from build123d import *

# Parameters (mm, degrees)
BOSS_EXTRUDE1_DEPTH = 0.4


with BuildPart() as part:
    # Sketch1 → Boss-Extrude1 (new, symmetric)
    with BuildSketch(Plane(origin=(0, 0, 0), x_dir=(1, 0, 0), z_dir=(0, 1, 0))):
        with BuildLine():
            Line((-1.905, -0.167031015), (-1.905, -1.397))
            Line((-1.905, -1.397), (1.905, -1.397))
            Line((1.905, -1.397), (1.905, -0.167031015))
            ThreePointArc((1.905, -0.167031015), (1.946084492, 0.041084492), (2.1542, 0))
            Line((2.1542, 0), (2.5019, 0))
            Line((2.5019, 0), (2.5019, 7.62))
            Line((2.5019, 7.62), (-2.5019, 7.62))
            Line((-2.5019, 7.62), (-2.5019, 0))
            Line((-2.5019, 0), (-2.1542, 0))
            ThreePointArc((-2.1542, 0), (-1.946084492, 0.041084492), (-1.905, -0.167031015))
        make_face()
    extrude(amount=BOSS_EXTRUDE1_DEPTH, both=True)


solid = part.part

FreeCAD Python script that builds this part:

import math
import FreeCAD as App
import Part
import Sketcher

V = App.Vector
Q = App.Units.Quantity

doc = App.newDocument("Part")
body = doc.addObject("PartDesign::Body", "Body")

# Sketch on XZ plane
sketch1 = body.newObject("Sketcher::SketchObject", "Sketch")
sketch1.AttachmentSupport = (doc.getObject("XZ_Plane"), [""])
sketch1.MapMode = "FlatFace"
sketch1.addGeometry([
    Part.LineSegment(V(-1.91, 0.17, 0), V(-1.91, 1.4, 0)),  # 0
    Part.LineSegment(V(-1.91, 1.4, 0), V(1.91, 1.4, 0)),  # 1
    Part.LineSegment(V(1.91, 1.4, 0), V(1.91, 0.17, 0)),  # 2
    Part.ArcOfCircle(Part.Circle(V(2.03, 0.08, 0), V(0, 0, 1), 0.15), math.radians(146), math.radians(326)),  # 3
    Part.LineSegment(V(2.15, 0, 0), V(2.5, 0, 0)),  # 4
    Part.LineSegment(V(2.5, 0, 0), V(2.5, -7.62, 0)),  # 5
    Part.LineSegment(V(2.5, -7.62, 0), V(-2.5, -7.62, 0)),  # 6
    Part.LineSegment(V(-2.5, -7.62, 0), V(-2.5, 0, 0)),  # 7
    Part.LineSegment(V(-2.5, 0, 0), V(-2.15, 0, 0)),  # 8
    Part.ArcOfCircle(Part.Circle(V(-2.03, 0.08, 0), V(0, 0, 1), 0.15), math.radians(-146), math.radians(34)),  # 9
], False)
sketch1.addConstraint([
    Sketcher.Constraint("Coincident", 0, 2, 1, 1),
    Sketcher.Constraint("Coincident", 1, 2, 2, 1),
    Sketcher.Constraint("Coincident", 2, 2, 3, 1),
    Sketcher.Constraint("Coincident", 3, 2, 4, 1),
    Sketcher.Constraint("Coincident", 4, 2, 5, 1),
    Sketcher.Constraint("Coincident", 5, 2, 6, 1),
    Sketcher.Constraint("Coincident", 6, 2, 7, 1),
    Sketcher.Constraint("Coincident", 7, 2, 8, 1),
    Sketcher.Constraint("Coincident", 8, 2, 9, 1),
    Sketcher.Constraint("Coincident", 9, 2, 0, 1),
    Sketcher.Constraint("Vertical", 0),
    Sketcher.Constraint("Horizontal", 1),
    Sketcher.Constraint("Vertical", 2),
    Sketcher.Constraint("Horizontal", 4),
    Sketcher.Constraint("Vertical", 5),
    Sketcher.Constraint("Horizontal", 6),
    Sketcher.Constraint("Vertical", 7),
    Sketcher.Constraint("Horizontal", 8),
    Sketcher.Constraint("Equal", 3, 9),
    Sketcher.Constraint("Symmetric", 4, 2, 7, 2, -1, 1),
    Sketcher.Constraint("Symmetric", 3, 3, 9, 3, -2),
    Sketcher.Constraint("PointOnObject", 3, 2, -1),
    Sketcher.Constraint("Horizontal", 2, 2, 9, 2),
    Sketcher.Constraint("DistanceY", 5, 2, 5, 1, Q("0.3 in")),
    Sketcher.Constraint("DistanceX", 1, 1, 1, 2, Q("0.15 in")),
    Sketcher.Constraint("DistanceX", 6, 2, 6, 1, Q("0.197 in")),
    Sketcher.Constraint("Radius", 3, Q("0.15 mm")),
    Sketcher.Constraint("DistanceY", -1, 1, 0, 2, Q("0.055 in")),
    Sketcher.Constraint("DistanceX", 4, 1, 4, 2, Q("0.3477 mm")),
    Sketcher.Constraint("DistanceX", -1, 1, 3, 3, Q("2.0296 mm")),
])
pad1 = body.newObject("PartDesign::Pad", "Pad")
pad1.Profile = sketch1
pad1.Length = 0.8
pad1.Midplane = True

doc.recompute()
